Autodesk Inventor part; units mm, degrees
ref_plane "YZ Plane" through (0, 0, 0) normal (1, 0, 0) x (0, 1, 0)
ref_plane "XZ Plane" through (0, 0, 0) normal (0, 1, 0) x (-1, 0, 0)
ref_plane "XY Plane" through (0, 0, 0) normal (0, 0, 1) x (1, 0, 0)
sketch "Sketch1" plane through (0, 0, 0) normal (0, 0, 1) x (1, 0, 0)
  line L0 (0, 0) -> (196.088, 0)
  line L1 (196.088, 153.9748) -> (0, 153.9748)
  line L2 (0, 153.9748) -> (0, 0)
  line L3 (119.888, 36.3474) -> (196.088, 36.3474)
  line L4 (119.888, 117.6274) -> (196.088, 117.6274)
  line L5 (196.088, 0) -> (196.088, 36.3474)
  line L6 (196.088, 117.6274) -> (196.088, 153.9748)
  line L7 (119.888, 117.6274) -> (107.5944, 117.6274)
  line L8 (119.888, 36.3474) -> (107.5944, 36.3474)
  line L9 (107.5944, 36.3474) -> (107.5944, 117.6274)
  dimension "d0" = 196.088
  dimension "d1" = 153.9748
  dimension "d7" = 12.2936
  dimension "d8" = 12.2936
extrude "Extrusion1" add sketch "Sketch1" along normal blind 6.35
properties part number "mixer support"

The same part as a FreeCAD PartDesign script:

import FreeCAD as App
import Part
import Sketcher
from FreeCAD import Vector
Q = App.Units.Quantity

doc = App.newDocument("Part")
params = doc.addObject("Spreadsheet::Sheet", "Params")
for row, (alias, value) in enumerate([
    ("sketch1_width", "7.72 in"),
    ("sketch1_height", "6.062 in"),
    ("sketch1_height2", "3.2 in"),
    ("sketch1_width2", "3.484 in"),
    ("pad1_length", "0.25 in"),
], start=1):
    params.set(f"A{row}", alias)
    params.set(f"B{row}", "=" + value)
    params.setAlias(f"B{row}", alias)

body = doc.addObject("PartDesign::Body", "Body")

# Sketch on XY plane
sketch1 = body.newObject("Sketcher::SketchObject", "Sketch")
sketch1.AttachmentSupport = (doc.getObject("XY_Plane"), [""])
sketch1.MapMode = "FlatFace"
sketch1.addGeometry([
    Part.LineSegment(Vector(0, 154, 0), Vector(0, 0, 0)),  # 0
    Part.LineSegment(Vector(0, 0, 0), Vector(196, 0, 0)),  # 1
    Part.LineSegment(Vector(196, 0, 0), Vector(196, 36, 0)),  # 2
    Part.LineSegment(Vector(196, 36, 0), Vector(108, 36, 0)),  # 3
    Part.LineSegment(Vector(108, 36, 0), Vector(108, 118, 0)),  # 4
    Part.LineSegment(Vector(108, 118, 0), Vector(196, 118, 0)),  # 5
    Part.LineSegment(Vector(196, 118, 0), Vector(196, 154, 0)),  # 6
    Part.LineSegment(Vector(196, 154, 0), Vector(0, 154, 0)),  # 7
], False)
sketch1.addConstraint([
    Sketcher.Constraint("Coincident", 0, 2, 1, 1),
    Sketcher.Constraint("Coincident", 1, 2, 2, 1),
    Sketcher.Constraint("Coincident", 2, 2, 3, 1),
    Sketcher.Constraint("Coincident", 3, 2, 4, 1),
    Sketcher.Constraint("Coincident", 4, 2, 5, 1),
    Sketcher.Constraint("Coincident", 5, 2, 6, 1),
    Sketcher.Constraint("Coincident", 6, 2, 7, 1),
    Sketcher.Constraint("Coincident", 7, 2, 0, 1),
    Sketcher.Constraint("Vertical", 0),
    Sketcher.Constraint("Horizontal", 1),
    Sketcher.Constraint("Vertical", 2),
    Sketcher.Constraint("Horizontal", 3),
    Sketcher.Constraint("Vertical", 4),
    Sketcher.Constraint("Horizontal", 5),
    Sketcher.Constraint("Vertical", 6),
    Sketcher.Constraint("Horizontal", 7),
    Sketcher.Constraint("Coincident", 0, 2, -1, 1),
    Sketcher.Constraint("Vertical", 2, 2, 5, 2),
    Sketcher.Constraint("Equal", 2, 6),
    Sketcher.Constraint("DistanceX", 1, 1, 1, 2, Q("7.72 in")),
    Sketcher.Constraint("DistanceY", 0, 2, 0, 1, Q("6.062 in")),
    Sketcher.Constraint("DistanceY", 4, 1, 4, 2, Q("3.2 in")),
    Sketcher.Constraint("DistanceX", 3, 2, 3, 1, Q("3.484 in")),
])
sketch1.setExpression("Constraints[19]", "Params.sketch1_width")
sketch1.setExpression("Constraints[20]", "Params.sketch1_height")
sketch1.setExpression("Constraints[21]", "Params.sketch1_height2")
sketch1.setExpression("Constraints[22]", "Params.sketch1_width2")
pad1 = body.newObject("PartDesign::Pad", "Pad")
pad1.Profile = sketch1
pad1.setExpression("Length", "Params.pad1_length")

doc.recompute()
